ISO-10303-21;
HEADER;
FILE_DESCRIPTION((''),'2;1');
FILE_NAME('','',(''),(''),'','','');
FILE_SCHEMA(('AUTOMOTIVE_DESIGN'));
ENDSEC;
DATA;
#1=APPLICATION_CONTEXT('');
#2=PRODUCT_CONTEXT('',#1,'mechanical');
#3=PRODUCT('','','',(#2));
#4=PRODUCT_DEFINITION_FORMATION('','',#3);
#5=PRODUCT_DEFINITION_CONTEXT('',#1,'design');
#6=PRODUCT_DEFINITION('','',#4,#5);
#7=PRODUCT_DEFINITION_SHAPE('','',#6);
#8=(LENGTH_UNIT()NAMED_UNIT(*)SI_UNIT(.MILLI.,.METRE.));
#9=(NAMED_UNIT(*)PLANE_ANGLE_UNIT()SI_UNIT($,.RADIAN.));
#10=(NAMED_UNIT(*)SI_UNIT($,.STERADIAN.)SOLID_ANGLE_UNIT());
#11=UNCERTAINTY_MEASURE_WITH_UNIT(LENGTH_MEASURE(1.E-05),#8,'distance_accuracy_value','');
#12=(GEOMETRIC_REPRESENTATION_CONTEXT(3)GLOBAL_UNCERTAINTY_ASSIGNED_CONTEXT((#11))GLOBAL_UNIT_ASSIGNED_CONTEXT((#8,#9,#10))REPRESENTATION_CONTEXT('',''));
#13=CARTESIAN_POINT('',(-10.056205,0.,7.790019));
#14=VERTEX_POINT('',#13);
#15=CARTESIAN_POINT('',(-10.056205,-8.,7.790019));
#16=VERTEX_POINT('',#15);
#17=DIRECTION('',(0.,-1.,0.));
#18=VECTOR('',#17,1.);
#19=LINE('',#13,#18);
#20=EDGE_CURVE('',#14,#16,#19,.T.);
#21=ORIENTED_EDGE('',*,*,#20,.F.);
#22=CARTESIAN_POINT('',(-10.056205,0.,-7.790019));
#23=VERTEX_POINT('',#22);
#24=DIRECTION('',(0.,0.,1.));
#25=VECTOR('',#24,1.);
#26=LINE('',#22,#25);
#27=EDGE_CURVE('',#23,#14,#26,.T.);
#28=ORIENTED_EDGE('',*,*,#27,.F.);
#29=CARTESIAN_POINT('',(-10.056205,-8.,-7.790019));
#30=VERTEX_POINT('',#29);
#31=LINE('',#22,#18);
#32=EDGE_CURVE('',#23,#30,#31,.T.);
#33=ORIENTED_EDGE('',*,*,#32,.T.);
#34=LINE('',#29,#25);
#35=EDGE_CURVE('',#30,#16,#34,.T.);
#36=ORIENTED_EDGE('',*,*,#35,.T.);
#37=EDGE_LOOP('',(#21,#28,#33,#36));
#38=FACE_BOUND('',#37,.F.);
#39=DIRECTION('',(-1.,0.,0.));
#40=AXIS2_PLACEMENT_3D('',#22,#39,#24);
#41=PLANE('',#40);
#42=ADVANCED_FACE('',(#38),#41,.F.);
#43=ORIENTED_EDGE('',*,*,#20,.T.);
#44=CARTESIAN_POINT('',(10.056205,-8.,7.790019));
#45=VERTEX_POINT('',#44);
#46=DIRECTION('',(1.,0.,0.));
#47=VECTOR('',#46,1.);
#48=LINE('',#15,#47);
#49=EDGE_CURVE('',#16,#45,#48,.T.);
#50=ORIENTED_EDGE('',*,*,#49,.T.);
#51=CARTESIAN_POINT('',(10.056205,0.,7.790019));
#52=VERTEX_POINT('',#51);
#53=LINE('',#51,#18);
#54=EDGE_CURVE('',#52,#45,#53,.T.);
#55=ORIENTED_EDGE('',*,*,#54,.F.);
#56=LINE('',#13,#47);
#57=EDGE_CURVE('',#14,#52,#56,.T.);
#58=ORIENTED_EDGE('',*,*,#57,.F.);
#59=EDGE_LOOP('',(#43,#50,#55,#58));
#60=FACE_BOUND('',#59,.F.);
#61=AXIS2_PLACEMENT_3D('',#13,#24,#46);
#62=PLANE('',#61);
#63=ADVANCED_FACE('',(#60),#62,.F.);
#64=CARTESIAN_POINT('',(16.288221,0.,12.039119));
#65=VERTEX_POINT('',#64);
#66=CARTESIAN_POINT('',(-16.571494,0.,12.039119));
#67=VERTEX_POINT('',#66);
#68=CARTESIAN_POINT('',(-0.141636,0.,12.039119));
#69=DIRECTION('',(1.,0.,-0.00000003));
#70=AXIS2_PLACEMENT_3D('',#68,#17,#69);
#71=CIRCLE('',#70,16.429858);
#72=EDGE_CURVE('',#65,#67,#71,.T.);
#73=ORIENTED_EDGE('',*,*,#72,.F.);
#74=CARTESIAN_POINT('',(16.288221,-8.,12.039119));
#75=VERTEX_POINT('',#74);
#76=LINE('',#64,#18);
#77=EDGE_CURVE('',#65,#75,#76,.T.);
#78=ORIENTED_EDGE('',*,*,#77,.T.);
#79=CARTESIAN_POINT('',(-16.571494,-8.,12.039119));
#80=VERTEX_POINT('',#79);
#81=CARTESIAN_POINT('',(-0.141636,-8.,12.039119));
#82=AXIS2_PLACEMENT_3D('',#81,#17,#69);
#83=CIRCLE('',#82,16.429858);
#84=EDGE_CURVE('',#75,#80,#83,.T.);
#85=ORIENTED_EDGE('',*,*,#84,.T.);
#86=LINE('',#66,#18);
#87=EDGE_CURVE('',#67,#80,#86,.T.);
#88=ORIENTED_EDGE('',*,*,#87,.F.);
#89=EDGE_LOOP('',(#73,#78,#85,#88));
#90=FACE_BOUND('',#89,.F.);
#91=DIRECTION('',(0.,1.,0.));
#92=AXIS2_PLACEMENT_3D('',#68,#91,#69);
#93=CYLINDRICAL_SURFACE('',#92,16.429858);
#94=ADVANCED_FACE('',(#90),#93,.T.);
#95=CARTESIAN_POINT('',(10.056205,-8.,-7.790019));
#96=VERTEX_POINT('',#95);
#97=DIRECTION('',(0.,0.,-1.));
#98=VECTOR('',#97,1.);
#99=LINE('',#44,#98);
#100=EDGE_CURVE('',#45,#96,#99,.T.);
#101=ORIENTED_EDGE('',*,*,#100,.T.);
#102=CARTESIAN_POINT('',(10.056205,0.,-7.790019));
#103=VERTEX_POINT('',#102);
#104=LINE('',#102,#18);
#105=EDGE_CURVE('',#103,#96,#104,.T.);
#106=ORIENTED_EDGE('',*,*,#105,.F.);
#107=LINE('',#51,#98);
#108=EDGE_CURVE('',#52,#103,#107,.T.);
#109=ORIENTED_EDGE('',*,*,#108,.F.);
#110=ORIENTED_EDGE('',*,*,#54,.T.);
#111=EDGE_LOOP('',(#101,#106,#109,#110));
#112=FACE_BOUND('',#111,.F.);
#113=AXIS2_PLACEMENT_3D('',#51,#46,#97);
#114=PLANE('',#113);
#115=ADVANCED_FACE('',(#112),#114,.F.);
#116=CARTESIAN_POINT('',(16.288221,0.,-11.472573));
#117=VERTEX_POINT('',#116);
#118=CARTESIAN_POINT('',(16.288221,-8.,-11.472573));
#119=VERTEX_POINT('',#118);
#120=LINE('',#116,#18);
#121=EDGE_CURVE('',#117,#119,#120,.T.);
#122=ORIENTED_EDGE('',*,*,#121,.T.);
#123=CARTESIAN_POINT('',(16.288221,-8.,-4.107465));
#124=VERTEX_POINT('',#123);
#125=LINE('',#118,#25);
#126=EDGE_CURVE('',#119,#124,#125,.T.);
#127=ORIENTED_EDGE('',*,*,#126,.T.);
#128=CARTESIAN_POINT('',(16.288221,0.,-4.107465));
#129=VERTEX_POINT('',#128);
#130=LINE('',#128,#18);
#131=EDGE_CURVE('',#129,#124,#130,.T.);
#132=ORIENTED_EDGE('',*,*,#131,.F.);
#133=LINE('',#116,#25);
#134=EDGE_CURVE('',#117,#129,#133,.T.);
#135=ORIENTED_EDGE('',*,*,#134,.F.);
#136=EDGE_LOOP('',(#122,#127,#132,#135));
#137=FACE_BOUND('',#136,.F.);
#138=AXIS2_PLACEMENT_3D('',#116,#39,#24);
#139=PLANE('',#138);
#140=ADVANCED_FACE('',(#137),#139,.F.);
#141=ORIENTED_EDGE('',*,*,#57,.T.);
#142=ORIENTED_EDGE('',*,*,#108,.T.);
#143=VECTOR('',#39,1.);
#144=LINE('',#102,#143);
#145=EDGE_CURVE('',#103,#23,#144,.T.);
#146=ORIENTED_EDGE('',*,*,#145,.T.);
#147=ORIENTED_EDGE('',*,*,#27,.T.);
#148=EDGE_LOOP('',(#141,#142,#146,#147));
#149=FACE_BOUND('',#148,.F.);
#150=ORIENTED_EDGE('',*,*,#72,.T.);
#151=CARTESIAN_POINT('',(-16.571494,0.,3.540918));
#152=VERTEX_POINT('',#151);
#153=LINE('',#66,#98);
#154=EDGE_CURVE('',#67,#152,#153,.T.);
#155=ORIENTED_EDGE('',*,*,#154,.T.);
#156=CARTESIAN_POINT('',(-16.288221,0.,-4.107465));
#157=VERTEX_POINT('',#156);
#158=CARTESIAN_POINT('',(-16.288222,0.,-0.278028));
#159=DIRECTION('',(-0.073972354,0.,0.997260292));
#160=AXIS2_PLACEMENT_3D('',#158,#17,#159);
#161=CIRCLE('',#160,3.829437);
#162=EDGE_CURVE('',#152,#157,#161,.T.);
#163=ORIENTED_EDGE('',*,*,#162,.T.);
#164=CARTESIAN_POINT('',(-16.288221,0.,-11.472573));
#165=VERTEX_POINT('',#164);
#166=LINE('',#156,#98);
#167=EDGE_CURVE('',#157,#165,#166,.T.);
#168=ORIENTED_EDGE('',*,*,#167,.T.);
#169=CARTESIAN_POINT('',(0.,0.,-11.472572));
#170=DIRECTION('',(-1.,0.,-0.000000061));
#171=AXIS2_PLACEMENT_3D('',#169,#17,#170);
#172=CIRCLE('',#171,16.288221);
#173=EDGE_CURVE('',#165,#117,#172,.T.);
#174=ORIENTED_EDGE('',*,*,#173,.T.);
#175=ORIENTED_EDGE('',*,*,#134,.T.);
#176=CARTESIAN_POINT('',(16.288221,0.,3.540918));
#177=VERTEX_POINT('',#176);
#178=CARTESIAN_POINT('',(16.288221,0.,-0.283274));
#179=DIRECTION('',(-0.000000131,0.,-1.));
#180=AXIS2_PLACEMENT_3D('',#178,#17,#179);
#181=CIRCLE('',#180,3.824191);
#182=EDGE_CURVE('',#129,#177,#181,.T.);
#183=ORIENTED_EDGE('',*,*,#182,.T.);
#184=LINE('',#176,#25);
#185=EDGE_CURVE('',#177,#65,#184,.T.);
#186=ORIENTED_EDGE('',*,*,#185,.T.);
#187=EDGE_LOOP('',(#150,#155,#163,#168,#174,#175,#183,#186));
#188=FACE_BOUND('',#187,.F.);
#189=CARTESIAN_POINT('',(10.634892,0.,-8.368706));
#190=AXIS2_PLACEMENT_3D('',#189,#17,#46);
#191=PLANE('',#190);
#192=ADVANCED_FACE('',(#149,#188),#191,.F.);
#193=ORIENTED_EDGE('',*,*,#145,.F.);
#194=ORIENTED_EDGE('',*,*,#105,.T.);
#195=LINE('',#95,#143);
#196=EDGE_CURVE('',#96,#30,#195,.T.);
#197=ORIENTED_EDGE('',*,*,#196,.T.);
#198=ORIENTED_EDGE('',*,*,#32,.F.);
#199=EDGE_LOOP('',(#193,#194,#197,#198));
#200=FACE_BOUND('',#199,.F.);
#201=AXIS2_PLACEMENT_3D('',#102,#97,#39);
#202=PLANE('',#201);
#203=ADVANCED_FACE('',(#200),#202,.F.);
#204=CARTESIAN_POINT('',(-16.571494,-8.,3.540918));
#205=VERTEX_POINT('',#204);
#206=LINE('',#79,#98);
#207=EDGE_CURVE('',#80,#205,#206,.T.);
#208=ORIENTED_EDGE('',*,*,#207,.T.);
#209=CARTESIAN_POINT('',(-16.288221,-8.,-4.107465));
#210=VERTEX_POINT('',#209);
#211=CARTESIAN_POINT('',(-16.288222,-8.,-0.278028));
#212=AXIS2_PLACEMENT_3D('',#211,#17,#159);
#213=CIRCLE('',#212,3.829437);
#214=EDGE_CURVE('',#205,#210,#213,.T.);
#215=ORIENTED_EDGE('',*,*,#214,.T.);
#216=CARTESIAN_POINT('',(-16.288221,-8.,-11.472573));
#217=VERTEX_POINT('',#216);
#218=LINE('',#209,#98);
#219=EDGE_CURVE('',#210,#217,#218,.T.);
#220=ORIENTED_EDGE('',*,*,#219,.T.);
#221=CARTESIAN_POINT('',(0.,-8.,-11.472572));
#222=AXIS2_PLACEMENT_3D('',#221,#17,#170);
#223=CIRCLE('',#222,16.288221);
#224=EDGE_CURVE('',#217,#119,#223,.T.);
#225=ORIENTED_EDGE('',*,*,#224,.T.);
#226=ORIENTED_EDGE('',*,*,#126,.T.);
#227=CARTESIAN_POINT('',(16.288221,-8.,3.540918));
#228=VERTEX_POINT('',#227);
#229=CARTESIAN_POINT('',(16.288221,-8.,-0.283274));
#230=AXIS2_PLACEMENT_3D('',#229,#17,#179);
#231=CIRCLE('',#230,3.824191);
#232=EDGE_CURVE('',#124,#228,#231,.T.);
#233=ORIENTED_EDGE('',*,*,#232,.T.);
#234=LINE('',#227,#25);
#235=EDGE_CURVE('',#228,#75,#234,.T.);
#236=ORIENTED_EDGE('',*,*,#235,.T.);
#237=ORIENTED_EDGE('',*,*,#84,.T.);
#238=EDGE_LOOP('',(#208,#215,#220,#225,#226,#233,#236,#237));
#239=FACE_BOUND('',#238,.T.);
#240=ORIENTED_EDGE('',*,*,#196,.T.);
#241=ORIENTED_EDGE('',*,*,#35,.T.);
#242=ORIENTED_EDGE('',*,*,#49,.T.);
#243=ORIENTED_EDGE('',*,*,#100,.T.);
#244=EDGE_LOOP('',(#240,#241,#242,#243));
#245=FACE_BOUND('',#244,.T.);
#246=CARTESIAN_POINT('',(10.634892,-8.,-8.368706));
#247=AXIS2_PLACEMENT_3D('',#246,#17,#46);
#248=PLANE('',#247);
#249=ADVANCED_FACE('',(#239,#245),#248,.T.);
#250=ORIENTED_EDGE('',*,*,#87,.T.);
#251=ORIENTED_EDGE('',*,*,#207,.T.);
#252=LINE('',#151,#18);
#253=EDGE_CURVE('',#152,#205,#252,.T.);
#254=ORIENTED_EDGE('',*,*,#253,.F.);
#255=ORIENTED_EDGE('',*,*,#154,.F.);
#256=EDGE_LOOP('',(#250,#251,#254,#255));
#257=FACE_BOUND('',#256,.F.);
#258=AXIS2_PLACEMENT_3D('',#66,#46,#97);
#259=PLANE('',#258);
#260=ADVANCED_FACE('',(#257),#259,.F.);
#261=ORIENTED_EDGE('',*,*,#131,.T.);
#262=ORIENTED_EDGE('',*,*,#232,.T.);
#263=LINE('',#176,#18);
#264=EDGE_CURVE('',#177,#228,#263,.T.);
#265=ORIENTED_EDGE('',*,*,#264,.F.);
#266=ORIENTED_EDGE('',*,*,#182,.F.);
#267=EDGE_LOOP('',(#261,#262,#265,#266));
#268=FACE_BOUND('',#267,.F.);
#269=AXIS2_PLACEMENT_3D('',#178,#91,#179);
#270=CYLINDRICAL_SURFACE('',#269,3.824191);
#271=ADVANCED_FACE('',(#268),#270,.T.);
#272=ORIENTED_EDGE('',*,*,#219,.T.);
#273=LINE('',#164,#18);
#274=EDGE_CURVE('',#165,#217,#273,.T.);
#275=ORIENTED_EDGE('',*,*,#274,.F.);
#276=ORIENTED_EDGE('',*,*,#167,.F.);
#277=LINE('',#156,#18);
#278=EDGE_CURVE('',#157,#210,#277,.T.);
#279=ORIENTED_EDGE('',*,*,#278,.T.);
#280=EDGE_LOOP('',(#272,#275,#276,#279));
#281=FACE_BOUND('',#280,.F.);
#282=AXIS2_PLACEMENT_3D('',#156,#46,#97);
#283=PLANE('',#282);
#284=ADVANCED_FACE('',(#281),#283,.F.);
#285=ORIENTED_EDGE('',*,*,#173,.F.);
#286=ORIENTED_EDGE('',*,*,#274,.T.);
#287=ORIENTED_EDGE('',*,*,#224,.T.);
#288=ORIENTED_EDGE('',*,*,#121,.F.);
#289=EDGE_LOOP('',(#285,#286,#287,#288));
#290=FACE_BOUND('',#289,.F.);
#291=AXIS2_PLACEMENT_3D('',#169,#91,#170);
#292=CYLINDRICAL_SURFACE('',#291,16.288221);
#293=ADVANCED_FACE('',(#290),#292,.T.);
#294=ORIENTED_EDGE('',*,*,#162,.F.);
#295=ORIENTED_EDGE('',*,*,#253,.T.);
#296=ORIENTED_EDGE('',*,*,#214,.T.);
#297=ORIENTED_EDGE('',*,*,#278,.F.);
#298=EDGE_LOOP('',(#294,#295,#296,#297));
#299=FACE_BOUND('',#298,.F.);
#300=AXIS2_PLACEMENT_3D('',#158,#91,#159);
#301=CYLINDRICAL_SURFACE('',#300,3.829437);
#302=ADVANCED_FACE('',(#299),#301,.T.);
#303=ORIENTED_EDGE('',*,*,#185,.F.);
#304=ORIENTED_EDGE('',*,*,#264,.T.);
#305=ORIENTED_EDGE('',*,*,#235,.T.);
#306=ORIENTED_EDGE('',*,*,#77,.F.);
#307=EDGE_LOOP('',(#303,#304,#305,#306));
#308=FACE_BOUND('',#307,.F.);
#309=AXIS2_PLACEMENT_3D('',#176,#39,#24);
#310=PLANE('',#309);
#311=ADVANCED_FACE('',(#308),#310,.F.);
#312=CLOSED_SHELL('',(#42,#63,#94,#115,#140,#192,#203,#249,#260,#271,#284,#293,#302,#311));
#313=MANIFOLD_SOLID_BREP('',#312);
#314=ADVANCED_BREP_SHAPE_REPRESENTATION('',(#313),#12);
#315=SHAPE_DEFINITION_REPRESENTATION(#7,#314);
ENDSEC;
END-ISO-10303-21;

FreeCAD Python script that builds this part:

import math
import FreeCAD as App
import Part
import Sketcher
Q = App.Units.Quantity


def add_polygon(sketch, points):
    """Adds a closed chain of lines whose ends are joined by coincident constraints."""
    first, n = sketch.GeometryCount, len(points)
    for a, b in zip(points, points[1:] + points[:1]):
        sketch.addGeometry(Part.LineSegment(App.Vector(*a, 0), App.Vector(*b, 0)), False)
    for i in range(n):
        sketch.addConstraint(Sketcher.Constraint("Coincident", first + i, 2, first + (i + 1) % n, 1))

doc = App.newDocument("Part")
body = doc.addObject("PartDesign::Body", "Body")

sketch1 = body.newObject("Sketcher::SketchObject", "Sketch")
sketch1.AttachmentSupport = (doc.getObject("XZ_Plane"), [""])
sketch1.MapMode = "FlatFace"
sketch1.addGeometry(Part.ArcOfCircle(Part.Circle(App.Vector(-16.3, -0.3, 0), App.Vector(0, 0, 1), 3.8), math.radians(94), math.radians(270)), False)
sketch1.addGeometry(Part.LineSegment(App.Vector(-16.3, -4.1, 0), App.Vector(-16.3, -11.5, 0)), False)
sketch1.addGeometry(Part.ArcOfCircle(Part.Circle(App.Vector(0, -11.5, 0), App.Vector(0, 0, 1), 16.3), math.radians(-180), math.radians(0)), False)
sketch1.addGeometry(Part.LineSegment(App.Vector(16.3, -11.5, 0), App.Vector(16.3, -4.1, 0)), False)
sketch1.addGeometry(Part.ArcOfCircle(Part.Circle(App.Vector(16.3, -0.3, 0), App.Vector(0, 0, 1), 3.8), math.radians(-90), math.radians(90)), False)
sketch1.addGeometry(Part.LineSegment(App.Vector(16.3, 3.5, 0), App.Vector(16.3, 12, 0)), False)
sketch1.addGeometry(Part.ArcOfCircle(Part.Circle(App.Vector(-0.1, 12, 0), App.Vector(0, 0, 1), 16.4), math.radians(0), math.radians(180)), False)
sketch1.addGeometry(Part.LineSegment(App.Vector(-16.6, 12, 0), App.Vector(-16.6, 3.5, 0)), False)
add_polygon(sketch1, [(10.1, -7.8), (-10.1, -7.8), (-10.1, 7.8), (10.1, 7.8)])
sketch1.addConstraint(Sketcher.Constraint("Coincident", 0, 2, 1, 1))
sketch1.addConstraint(Sketcher.Constraint("Tangent", 1, 2, 2, 1))
sketch1.addConstraint(Sketcher.Constraint("Tangent", 2, 2, 3, 1))
sketch1.addConstraint(Sketcher.Constraint("Coincident", 3, 2, 4, 1))
sketch1.addConstraint(Sketcher.Constraint("Coincident", 4, 2, 5, 1))
sketch1.addConstraint(Sketcher.Constraint("Tangent", 5, 2, 6, 1))
sketch1.addConstraint(Sketcher.Constraint("Tangent", 6, 2, 7, 1))
sketch1.addConstraint(Sketcher.Constraint("Coincident", 7, 2, 0, 1))
sketch1.addConstraint(Sketcher.Constraint("Vertical", 1))
sketch1.addConstraint(Sketcher.Constraint("Vertical", 3))
sketch1.addConstraint(Sketcher.Constraint("Vertical", 5))
sketch1.addConstraint(Sketcher.Constraint("Vertical", 7))
sketch1.addConstraint(Sketcher.Constraint("Horizontal", 8))
sketch1.addConstraint(Sketcher.Constraint("Vertical", 9))
sketch1.addConstraint(Sketcher.Constraint("Horizontal", 10))
sketch1.addConstraint(Sketcher.Constraint("Vertical", 11))
sketch1.addConstraint(Sketcher.Constraint("Symmetric", 8, 2, 10, 2, -1, 1))
sketch1.addConstraint(Sketcher.Constraint("Symmetric", 0, 2, 3, 2, -2))
sketch1.addConstraint(Sketcher.Constraint("Horizontal", 4, 2, 7, 2))
sketch1.addConstraint(Sketcher.Constraint("Vertical", 4, 3, 2, 2))
sketch1.addConstraint(Sketcher.Constraint("Vertical", 3, 2, 4, 2))
sketch1.addConstraint(Sketcher.Constraint("Radius", 2, Q("16.288221 mm")))
sketch1.addConstraint(Sketcher.Constraint("Radius", 4, Q("3.824191 mm")))
sketch1.addConstraint(Sketcher.Constraint("DistanceY", 5, 1, 5, 2, Q("8.498201 mm")))
sketch1.addConstraint(Sketcher.Constraint("Radius", 0, Q("3.829437 mm")))
sketch1.addConstraint(Sketcher.Constraint("Radius", 6, Q("16.429858 mm")))
sketch1.addConstraint(Sketcher.Constraint("DistanceX", 8, 2, 8, 1, Q("20.11241 mm")))
sketch1.addConstraint(Sketcher.Constraint("DistanceY", 1, 2, 1, 1, Q("7.365108 mm")))
sketch1.addConstraint(Sketcher.Constraint("DistanceY", 9, 2, 6, 2, Q("4.2491 mm")))
sketch1.addConstraint(Sketcher.Constraint("DistanceY", 9, 1, 9, 2, Q("15.580038 mm")))
pad1 = body.newObject("PartDesign::Pad", "Pad")
pad1.Profile = sketch1
pad1.Length = 8

doc.recompute()
